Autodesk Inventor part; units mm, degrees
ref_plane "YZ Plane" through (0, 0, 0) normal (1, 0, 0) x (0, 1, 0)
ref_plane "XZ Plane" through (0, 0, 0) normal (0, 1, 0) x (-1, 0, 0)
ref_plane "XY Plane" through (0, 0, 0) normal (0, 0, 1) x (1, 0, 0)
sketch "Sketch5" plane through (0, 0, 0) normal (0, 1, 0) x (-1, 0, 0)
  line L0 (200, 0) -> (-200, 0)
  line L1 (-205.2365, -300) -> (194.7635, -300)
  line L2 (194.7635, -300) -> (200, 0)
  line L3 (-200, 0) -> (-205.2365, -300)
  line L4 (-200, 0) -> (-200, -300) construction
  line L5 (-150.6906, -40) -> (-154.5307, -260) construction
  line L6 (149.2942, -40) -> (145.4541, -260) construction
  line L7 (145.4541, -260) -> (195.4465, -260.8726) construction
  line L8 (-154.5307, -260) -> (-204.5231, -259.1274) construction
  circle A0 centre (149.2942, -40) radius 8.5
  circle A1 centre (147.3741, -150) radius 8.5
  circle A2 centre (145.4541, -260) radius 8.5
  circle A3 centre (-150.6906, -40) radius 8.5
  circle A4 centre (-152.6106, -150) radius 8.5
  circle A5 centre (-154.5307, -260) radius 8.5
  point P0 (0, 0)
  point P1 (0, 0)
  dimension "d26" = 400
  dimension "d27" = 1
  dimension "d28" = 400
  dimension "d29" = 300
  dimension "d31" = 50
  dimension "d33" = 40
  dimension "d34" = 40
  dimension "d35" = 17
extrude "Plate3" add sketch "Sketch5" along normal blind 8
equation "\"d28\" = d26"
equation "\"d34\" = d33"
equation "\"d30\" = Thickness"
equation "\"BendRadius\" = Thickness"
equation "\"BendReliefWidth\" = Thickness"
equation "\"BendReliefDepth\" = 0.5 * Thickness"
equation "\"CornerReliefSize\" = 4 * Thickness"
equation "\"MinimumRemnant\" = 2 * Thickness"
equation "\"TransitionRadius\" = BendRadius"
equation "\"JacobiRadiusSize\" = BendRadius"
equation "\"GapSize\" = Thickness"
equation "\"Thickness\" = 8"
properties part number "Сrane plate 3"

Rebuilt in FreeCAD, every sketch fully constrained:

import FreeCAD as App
import Part
import Sketcher

V = App.Vector
Q = App.Units.Quantity

doc = App.newDocument("Part")
body = doc.addObject("PartDesign::Body", "Body")

# Sketch on XZ plane
sketch1 = doc.addObject("Sketcher::SketchObject", "Sketch")
body.addObject(sketch1)
sketch1.AttachmentSupport = (doc.XZ_Plane, [""])
sketch1.MapMode = "FlatFace"
sketch1.addGeometry(Part.LineSegment(V(-194.7635, -300, 0), V(-200, 0, 0)), False)
sketch1.addGeometry(Part.LineSegment(V(-200, 0, 0), V(200, 0, 0)), False)
sketch1.addGeometry(Part.LineSegment(V(200, 0, 0), V(205.2365, -300, 0)), False)
sketch1.addGeometry(Part.LineSegment(V(205.2365, -300, 0), V(-194.7635, -300, 0)), False)
sketch1.addGeometry(Part.Circle(V(154.5307, -260, 0), V(0, 0, 1), 8.5), False)
sketch1.addGeometry(Part.Circle(V(-145.4541, -260, 0), V(0, 0, 1), 8.5), False)
sketch1.addGeometry(Part.Circle(V(152.6106, -150, 0), V(0, 0, 1), 8.5), False)
sketch1.addGeometry(Part.Circle(V(150.6906, -40, 0), V(0, 0, 1), 8.5), False)
sketch1.addGeometry(Part.Circle(V(-147.3741, -150, 0), V(0, 0, 1), 8.5), False)
sketch1.addGeometry(Part.Circle(V(-149.2942, -40, 0), V(0, 0, 1), 8.5), False)
sketch1.addConstraint(Sketcher.Constraint("Coincident", 0, 2, 1, 1))
sketch1.addConstraint(Sketcher.Constraint("Coincident", 1, 2, 2, 1))
sketch1.addConstraint(Sketcher.Constraint("Coincident", 2, 2, 3, 1))
sketch1.addConstraint(Sketcher.Constraint("Coincident", 3, 2, 0, 1))
sketch1.addConstraint(Sketcher.Constraint("Horizontal", 1))
sketch1.addConstraint(Sketcher.Constraint("Horizontal", 3))
sketch1.addConstraint(Sketcher.Constraint("Equal", 4, 5))
sketch1.addConstraint(Sketcher.Constraint("Equal", 5, 6))
sketch1.addConstraint(Sketcher.Constraint("Equal", 6, 7))
sketch1.addConstraint(Sketcher.Constraint("Equal", 7, 8))
sketch1.addConstraint(Sketcher.Constraint("Equal", 8, 9))
sketch1.addConstraint(Sketcher.Constraint("Symmetric", 0, 2, 1, 2, -1, 1))
sketch1.addConstraint(Sketcher.Constraint("Parallel", 0, 2))
sketch1.addConstraint(Sketcher.Constraint("Horizontal", 4, 3, 5, 3))
sketch1.addConstraint(Sketcher.Constraint("Horizontal", 6, 3, 8, 3))
sketch1.addConstraint(Sketcher.Constraint("Horizontal", 7, 3, 9, 3))
sketch1.addConstraint(Sketcher.Constraint("Diameter", 4, Q("17 mm")))
sketch1.addConstraint(Sketcher.Constraint("DistanceX", 1, 1, 1, 2, Q("400 mm")))
sketch1.addConstraint(Sketcher.Constraint("DistanceY", 7, 3, -1, 1, Q("40 mm")))
sketch1.addConstraint(Sketcher.Constraint("DistanceY", 2, 2, -1, 1, Q("300 mm")))
sketch1.addConstraint(Sketcher.Constraint("DistanceY", 2, 2, 4, 3, Q("40 mm")))
sketch1.addConstraint(Sketcher.Constraint("Angle", 0, Q("91 deg")))
sketch1.addConstraint(Sketcher.Constraint("DistanceY", 6, 3, -1, 1, Q("150 mm")))
sketch1.addConstraint(Sketcher.Constraint("DistanceX", 6, 3, 4, 3, Q("1.92 mm")))
sketch1.addConstraint(Sketcher.Constraint("DistanceX", 7, 3, 6, 3, Q("1.92 mm")))
sketch1.addConstraint(Sketcher.Constraint("DistanceX", 8, 3, 5, 3, Q("1.92 mm")))
sketch1.addConstraint(Sketcher.Constraint("DistanceX", 9, 3, 8, 3, Q("1.92 mm")))
sketch1.addConstraint(Sketcher.Constraint("DistanceX", 5, 3, -1, 1, Q("145.454 mm")))
sketch1.addConstraint(Sketcher.Constraint("DistanceX", 9, 3, 4, 3, Q("303.825 mm")))
pad1 = doc.addObject("PartDesign::Pad", "Pad")
body.addObject(pad1)
pad1.Profile = sketch1
pad1.Length = 8
pad1.Reversed = True

doc.recompute()
